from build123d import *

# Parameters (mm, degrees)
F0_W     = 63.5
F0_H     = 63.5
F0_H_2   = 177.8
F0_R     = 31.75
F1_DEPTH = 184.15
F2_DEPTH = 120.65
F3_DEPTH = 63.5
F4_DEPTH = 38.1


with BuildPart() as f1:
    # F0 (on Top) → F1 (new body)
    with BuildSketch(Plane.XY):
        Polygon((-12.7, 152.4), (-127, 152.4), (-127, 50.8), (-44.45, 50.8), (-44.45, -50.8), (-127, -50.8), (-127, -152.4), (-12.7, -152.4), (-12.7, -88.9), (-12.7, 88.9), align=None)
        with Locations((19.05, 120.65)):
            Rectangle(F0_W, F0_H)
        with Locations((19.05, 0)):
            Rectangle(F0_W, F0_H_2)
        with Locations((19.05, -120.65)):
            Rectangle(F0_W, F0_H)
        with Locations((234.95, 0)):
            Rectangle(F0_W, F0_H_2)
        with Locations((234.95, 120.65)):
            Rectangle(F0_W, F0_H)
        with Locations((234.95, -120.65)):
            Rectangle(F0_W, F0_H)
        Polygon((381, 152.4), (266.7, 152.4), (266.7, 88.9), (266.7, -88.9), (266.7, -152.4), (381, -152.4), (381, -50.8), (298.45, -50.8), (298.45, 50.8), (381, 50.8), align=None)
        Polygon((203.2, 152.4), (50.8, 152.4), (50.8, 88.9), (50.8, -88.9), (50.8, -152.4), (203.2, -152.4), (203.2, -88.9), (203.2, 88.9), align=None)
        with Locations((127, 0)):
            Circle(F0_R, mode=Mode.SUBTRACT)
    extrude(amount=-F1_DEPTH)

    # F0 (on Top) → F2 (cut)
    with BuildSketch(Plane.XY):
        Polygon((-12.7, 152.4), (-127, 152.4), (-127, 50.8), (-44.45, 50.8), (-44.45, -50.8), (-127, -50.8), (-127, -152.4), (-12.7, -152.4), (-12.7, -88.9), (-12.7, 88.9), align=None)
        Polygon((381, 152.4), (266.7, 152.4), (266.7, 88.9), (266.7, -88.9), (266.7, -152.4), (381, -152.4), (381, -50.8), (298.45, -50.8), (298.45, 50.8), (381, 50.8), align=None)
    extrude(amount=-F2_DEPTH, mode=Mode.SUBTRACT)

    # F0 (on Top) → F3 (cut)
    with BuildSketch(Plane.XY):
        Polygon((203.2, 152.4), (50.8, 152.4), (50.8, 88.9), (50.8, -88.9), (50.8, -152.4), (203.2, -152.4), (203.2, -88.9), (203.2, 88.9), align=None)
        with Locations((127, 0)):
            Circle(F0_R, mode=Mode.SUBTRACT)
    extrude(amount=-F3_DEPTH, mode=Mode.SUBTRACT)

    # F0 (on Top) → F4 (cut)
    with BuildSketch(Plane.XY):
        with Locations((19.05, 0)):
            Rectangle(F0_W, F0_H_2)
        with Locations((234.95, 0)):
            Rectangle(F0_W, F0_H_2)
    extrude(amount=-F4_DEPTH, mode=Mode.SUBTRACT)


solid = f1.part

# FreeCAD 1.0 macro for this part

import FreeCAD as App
import Part
import Sketcher
Q = App.Units.Quantity


def add_polygon(sketch, points):
    """Adds a closed chain of lines whose ends are joined by coincident constraints."""
    first, n = sketch.GeometryCount, len(points)
    for a, b in zip(points, points[1:] + points[:1]):
        sketch.addGeometry(Part.LineSegment(App.Vector(*a, 0), App.Vector(*b, 0)), False)
    for i in range(n):
        sketch.addConstraint(Sketcher.Constraint("Coincident", first + i, 2, first + (i + 1) % n, 1))

doc = App.newDocument("Part")
params = doc.addObject("Spreadsheet::Sheet", "Params")
for row, (alias, value) in enumerate([
    ("sketch1_diameter", "2.5 in"),
    ("sketch1_width", "20 in"),
    ("sketch1_height", "4 in"),
    ("sketch1_width2", "3.25 in"),
    ("pad1_length", "7.25 in"),
    ("sketch2_height", "4 in"),
    ("sketch2_width", "4.5 in"),
    ("sketch2_width2", "3.25 in"),
    ("pocket1_length", "4.75 in"),
    ("sketch3_diameter", "2.5 in"),
    ("sketch3_width", "6 in"),
    ("sketch3_height", "12 in"),
    ("pocket2_length", "2.5 in"),
    ("sketch4_height", "7 in"),
    ("sketch4_width", "2.5 in"),
    ("pocket3_length", "1.5 in"),
], start=1):
    params.set(f"A{row}", alias)
    params.set(f"B{row}", "=" + value)
    params.setAlias(f"B{row}", alias)

body = doc.addObject("PartDesign::Body", "Body")

# Sketch on XY plane
sketch1 = body.newObject("Sketcher::SketchObject", "Sketch")
sketch1.AttachmentSupport = (doc.getObject("XY_Plane"), [""])
sketch1.MapMode = "FlatFace"
add_polygon(sketch1, [(-127, 152.4), (-127, 50.8), (-44.45, 50.8), (-44.45, -50.8), (-127, -50.8), (-127, -152.4), (381, -152.4), (381, -50.8), (298.45, -50.8), (298.45, 50.8), (381, 50.8), (381, 152.4)])  # lines 0-11
sketch1.addGeometry(Part.Circle(App.Vector(127, 0, 0), App.Vector(0, 0, 1), 31.75), False)  # 12
sketch1.addConstraint(Sketcher.Constraint("Vertical", 0))
sketch1.addConstraint(Sketcher.Constraint("Horizontal", 1))
sketch1.addConstraint(Sketcher.Constraint("Vertical", 2))
sketch1.addConstraint(Sketcher.Constraint("Horizontal", 3))
sketch1.addConstraint(Sketcher.Constraint("Vertical", 4))
sketch1.addConstraint(Sketcher.Constraint("Horizontal", 5))
sketch1.addConstraint(Sketcher.Constraint("Vertical", 6))
sketch1.addConstraint(Sketcher.Constraint("Horizontal", 7))
sketch1.addConstraint(Sketcher.Constraint("Vertical", 8))
sketch1.addConstraint(Sketcher.Constraint("Horizontal", 9))
sketch1.addConstraint(Sketcher.Constraint("Vertical", 10))
sketch1.addConstraint(Sketcher.Constraint("Horizontal", 11))
sketch1.addConstraint(Sketcher.Constraint("Symmetric", 0, 2, 3, 2, -1))
sketch1.addConstraint(Sketcher.Constraint("Symmetric", 6, 2, 9, 2, -1))
sketch1.addConstraint(Sketcher.Constraint("PointOnObject", 12, 3, -1))
sketch1.addConstraint(Sketcher.Constraint("Horizontal", 3, 2, 6, 2))
sketch1.addConstraint(Sketcher.Constraint("Equal", 3, 7))
sketch1.addConstraint(Sketcher.Constraint("Equal", 0, 2))
sketch1.addConstraint(Sketcher.Constraint("Equal", 2, 4))
sketch1.addConstraint(Sketcher.Constraint("Diameter", 12, Q("2.5 in")))
sketch1.addConstraint(Sketcher.Constraint("DistanceX", 5, 1, 5, 2, Q("20 in")))
sketch1.addConstraint(Sketcher.Constraint("DistanceY", 0, 2, 0, 1, Q("4 in")))
sketch1.addConstraint(Sketcher.Constraint("DistanceX", -1, 1, 12, 3, Q("5 in")))
sketch1.addConstraint(Sketcher.Constraint("DistanceX", 0, 2, -1, 1, Q("5 in")))
sketch1.addConstraint(Sketcher.Constraint("DistanceX", 1, 1, 1, 2, Q("3.25 in")))
sketch1.setExpression("Constraints[31]", "Params.sketch1_diameter")
sketch1.setExpression("Constraints[32]", "Params.sketch1_width")
sketch1.setExpression("Constraints[33]", "Params.sketch1_height")
sketch1.setExpression("Constraints[36]", "Params.sketch1_width2")
pad1 = body.newObject("PartDesign::Pad", "Pad")
pad1.Profile = sketch1
pad1.setExpression("Length", "Params.pad1_length")
pad1.Reversed = True

# Sketch on XY plane
sketch2 = body.newObject("Sketcher::SketchObject", "Sketch001")
sketch2.AttachmentSupport = (doc.getObject("XY_Plane"), [""])
sketch2.MapMode = "FlatFace"
add_polygon(sketch2, [(-12.7, 152.4), (-127, 152.4), (-127, 50.8), (-44.45, 50.8), (-44.45, -50.8), (-127, -50.8), (-127, -152.4), (-12.7, -152.4)])  # lines 0-7
add_polygon(sketch2, [(381, 152.4), (266.7, 152.4), (266.7, -152.4), (381, -152.4), (381, -50.8), (298.45, -50.8), (298.45, 50.8), (381, 50.8)])  # lines 8-15
sketch2.addConstraint(Sketcher.Constraint("Horizontal", 0))
sketch2.addConstraint(Sketcher.Constraint("Vertical", 1))
sketch2.addConstraint(Sketcher.Constraint("Horizontal", 2))
sketch2.addConstraint(Sketcher.Constraint("Vertical", 3))
sketch2.addConstraint(Sketcher.Constraint("Horizontal", 4))
sketch2.addConstraint(Sketcher.Constraint("Vertical", 5))
sketch2.addConstraint(Sketcher.Constraint("Horizontal", 6))
sketch2.addConstraint(Sketcher.Constraint("Vertical", 7))
sketch2.addConstraint(Sketcher.Constraint("Horizontal", 8))
sketch2.addConstraint(Sketcher.Constraint("Vertical", 9))
sketch2.addConstraint(Sketcher.Constraint("Horizontal", 10))
sketch2.addConstraint(Sketcher.Constraint("Vertical", 11))
sketch2.addConstraint(Sketcher.Constraint("Horizontal", 12))
sketch2.addConstraint(Sketcher.Constraint("Vertical", 13))
sketch2.addConstraint(Sketcher.Constraint("Horizontal", 14))
sketch2.addConstraint(Sketcher.Constraint("Vertical", 15))
sketch2.addConstraint(Sketcher.Constraint("Symmetric", 1, 2, 4, 2, -1))
sketch2.addConstraint(Sketcher.Constraint("Symmetric", 11, 2, 14, 2, -1))
sketch2.addConstraint(Sketcher.Constraint("Horizontal", 7, 2, 8, 2))
sketch2.addConstraint(Sketcher.Constraint("Horizontal", 6, 2, 9, 2))
sketch2.addConstraint(Sketcher.Constraint("Horizontal", 4, 2, 11, 2))
sketch2.addConstraint(Sketcher.Constraint("Equal", 6, 8))
sketch2.addConstraint(Sketcher.Constraint("Equal", 4, 12))
sketch2.addConstraint(Sketcher.Constraint("Equal", 1, 3))
sketch2.addConstraint(Sketcher.Constraint("Equal", 3, 5))
sketch2.addConstraint(Sketcher.Constraint("DistanceY", 1, 2, 1, 1, Q("4 in")))
sketch2.addConstraint(Sketcher.Constraint("DistanceX", 0, 2, 0, 1, Q("4.5 in")))
sketch2.addConstraint(Sketcher.Constraint("DistanceX", 0, 2, -1, 1, Q("5 in")))
sketch2.addConstraint(Sketcher.Constraint("DistanceX", -1, 1, 10, 2, Q("15 in")))
sketch2.addConstraint(Sketcher.Constraint("DistanceX", 2, 1, 2, 2, Q("3.25 in")))
sketch2.setExpression("Constraints[41]", "Params.sketch2_height")
sketch2.setExpression("Constraints[42]", "Params.sketch2_width")
sketch2.setExpression("Constraints[45]", "Params.sketch2_width2")
pocket1 = body.newObject("PartDesign::Pocket", "Pocket")
pocket1.Profile = sketch2
pocket1.setExpression("Length", "Params.pocket1_length")

# Sketch on XY plane
sketch3 = body.newObject("Sketcher::SketchObject", "Sketch002")
sketch3.AttachmentSupport = (doc.getObject("XY_Plane"), [""])
sketch3.MapMode = "FlatFace"
add_polygon(sketch3, [(203.2, 152.4), (50.8, 152.4), (50.8, -152.4), (203.2, -152.4)])  # lines 0-3
sketch3.addGeometry(Part.Circle(App.Vector(127, 0, 0), App.Vector(0, 0, 1), 31.75), False)  # 4
sketch3.addConstraint(Sketcher.Constraint("Horizontal", 0))
sketch3.addConstraint(Sketcher.Constraint("Vertical", 1))
sketch3.addConstraint(Sketcher.Constraint("Horizontal", 2))
sketch3.addConstraint(Sketcher.Constraint("Vertical", 3))
sketch3.addConstraint(Sketcher.Constraint("PointOnObject", 4, 3, -1))
sketch3.addConstraint(Sketcher.Constraint("Diameter", 4, Q("2.5 in")))
sketch3.addConstraint(Sketcher.Constraint("DistanceX", 0, 2, 0, 1, Q("6 in")))
sketch3.addConstraint(Sketcher.Constraint("DistanceY", 1, 2, 1, 1, Q("12 in")))
sketch3.addConstraint(Sketcher.Constraint("DistanceX", -1, 1, 4, 3, Q("5 in")))
sketch3.addConstraint(Sketcher.Constraint("DistanceX", -1, 1, 0, 2, Q("2 in")))
sketch3.addConstraint(Sketcher.Constraint("DistanceY", -1, 1, 0, 2, Q("6 in")))
sketch3.setExpression("Constraints[9]", "Params.sketch3_diameter")
sketch3.setExpression("Constraints[10]", "Params.sketch3_width")
sketch3.setExpression("Constraints[11]", "Params.sketch3_height")
pocket2 = body.newObject("PartDesign::Pocket", "Pocket001")
pocket2.Profile = sketch3
pocket2.setExpression("Length", "Params.pocket2_length")

# Sketch on XY plane
sketch4 = body.newObject("Sketcher::SketchObject", "Sketch003")
sketch4.AttachmentSupport = (doc.getObject("XY_Plane"), [""])
sketch4.MapMode = "FlatFace"
add_polygon(sketch4, [(-12.7, 88.9), (-12.7, -88.9), (50.8, -88.9), (50.8, 88.9)])  # lines 0-3
add_polygon(sketch4, [(203.2, 88.9), (203.2, -88.9), (266.7, -88.9), (266.7, 88.9)])  # lines 4-7
sketch4.addConstraint(Sketcher.Constraint("Vertical", 0))
sketch4.addConstraint(Sketcher.Constraint("Horizontal", 1))
sketch4.addConstraint(Sketcher.Constraint("Vertical", 2))
sketch4.addConstraint(Sketcher.Constraint("Horizontal", 3))
sketch4.addConstraint(Sketcher.Constraint("Vertical", 4))
sketch4.addConstraint(Sketcher.Constraint("Horizontal", 5))
sketch4.addConstraint(Sketcher.Constraint("Vertical", 6))
sketch4.addConstraint(Sketcher.Constraint("Horizontal", 7))
sketch4.addConstraint(Sketcher.Constraint("Horizontal", 1, 2, 4, 2))
sketch4.addConstraint(Sketcher.Constraint("Horizontal", 3, 2, 6, 2))
sketch4.addConstraint(Sketcher.Constraint("Equal", 3, 5))
sketch4.addConstraint(Sketcher.Constraint("DistanceY", 0, 2, 0, 1, Q("7 in")))
sketch4.addConstraint(Sketcher.Constraint("DistanceX", 1, 1, 1, 2, Q("2.5 in")))
sketch4.addConstraint(Sketcher.Constraint("DistanceX", -1, 1, 1, 2, Q("2 in")))
sketch4.addConstraint(Sketcher.Constraint("DistanceX", -1, 1, 4, 2, Q("8 in")))
sketch4.addConstraint(Sketcher.Constraint("DistanceY", 0, 2, -1, 1, Q("3.5 in")))
sketch4.setExpression("Constraints[19]", "Params.sketch4_height")
sketch4.setExpression("Constraints[20]", "Params.sketch4_width")
pocket3 = body.newObject("PartDesign::Pocket", "Pocket002")
pocket3.Profile = sketch4
pocket3.setExpression("Length", "Params.pocket3_length")

doc.recompute()
